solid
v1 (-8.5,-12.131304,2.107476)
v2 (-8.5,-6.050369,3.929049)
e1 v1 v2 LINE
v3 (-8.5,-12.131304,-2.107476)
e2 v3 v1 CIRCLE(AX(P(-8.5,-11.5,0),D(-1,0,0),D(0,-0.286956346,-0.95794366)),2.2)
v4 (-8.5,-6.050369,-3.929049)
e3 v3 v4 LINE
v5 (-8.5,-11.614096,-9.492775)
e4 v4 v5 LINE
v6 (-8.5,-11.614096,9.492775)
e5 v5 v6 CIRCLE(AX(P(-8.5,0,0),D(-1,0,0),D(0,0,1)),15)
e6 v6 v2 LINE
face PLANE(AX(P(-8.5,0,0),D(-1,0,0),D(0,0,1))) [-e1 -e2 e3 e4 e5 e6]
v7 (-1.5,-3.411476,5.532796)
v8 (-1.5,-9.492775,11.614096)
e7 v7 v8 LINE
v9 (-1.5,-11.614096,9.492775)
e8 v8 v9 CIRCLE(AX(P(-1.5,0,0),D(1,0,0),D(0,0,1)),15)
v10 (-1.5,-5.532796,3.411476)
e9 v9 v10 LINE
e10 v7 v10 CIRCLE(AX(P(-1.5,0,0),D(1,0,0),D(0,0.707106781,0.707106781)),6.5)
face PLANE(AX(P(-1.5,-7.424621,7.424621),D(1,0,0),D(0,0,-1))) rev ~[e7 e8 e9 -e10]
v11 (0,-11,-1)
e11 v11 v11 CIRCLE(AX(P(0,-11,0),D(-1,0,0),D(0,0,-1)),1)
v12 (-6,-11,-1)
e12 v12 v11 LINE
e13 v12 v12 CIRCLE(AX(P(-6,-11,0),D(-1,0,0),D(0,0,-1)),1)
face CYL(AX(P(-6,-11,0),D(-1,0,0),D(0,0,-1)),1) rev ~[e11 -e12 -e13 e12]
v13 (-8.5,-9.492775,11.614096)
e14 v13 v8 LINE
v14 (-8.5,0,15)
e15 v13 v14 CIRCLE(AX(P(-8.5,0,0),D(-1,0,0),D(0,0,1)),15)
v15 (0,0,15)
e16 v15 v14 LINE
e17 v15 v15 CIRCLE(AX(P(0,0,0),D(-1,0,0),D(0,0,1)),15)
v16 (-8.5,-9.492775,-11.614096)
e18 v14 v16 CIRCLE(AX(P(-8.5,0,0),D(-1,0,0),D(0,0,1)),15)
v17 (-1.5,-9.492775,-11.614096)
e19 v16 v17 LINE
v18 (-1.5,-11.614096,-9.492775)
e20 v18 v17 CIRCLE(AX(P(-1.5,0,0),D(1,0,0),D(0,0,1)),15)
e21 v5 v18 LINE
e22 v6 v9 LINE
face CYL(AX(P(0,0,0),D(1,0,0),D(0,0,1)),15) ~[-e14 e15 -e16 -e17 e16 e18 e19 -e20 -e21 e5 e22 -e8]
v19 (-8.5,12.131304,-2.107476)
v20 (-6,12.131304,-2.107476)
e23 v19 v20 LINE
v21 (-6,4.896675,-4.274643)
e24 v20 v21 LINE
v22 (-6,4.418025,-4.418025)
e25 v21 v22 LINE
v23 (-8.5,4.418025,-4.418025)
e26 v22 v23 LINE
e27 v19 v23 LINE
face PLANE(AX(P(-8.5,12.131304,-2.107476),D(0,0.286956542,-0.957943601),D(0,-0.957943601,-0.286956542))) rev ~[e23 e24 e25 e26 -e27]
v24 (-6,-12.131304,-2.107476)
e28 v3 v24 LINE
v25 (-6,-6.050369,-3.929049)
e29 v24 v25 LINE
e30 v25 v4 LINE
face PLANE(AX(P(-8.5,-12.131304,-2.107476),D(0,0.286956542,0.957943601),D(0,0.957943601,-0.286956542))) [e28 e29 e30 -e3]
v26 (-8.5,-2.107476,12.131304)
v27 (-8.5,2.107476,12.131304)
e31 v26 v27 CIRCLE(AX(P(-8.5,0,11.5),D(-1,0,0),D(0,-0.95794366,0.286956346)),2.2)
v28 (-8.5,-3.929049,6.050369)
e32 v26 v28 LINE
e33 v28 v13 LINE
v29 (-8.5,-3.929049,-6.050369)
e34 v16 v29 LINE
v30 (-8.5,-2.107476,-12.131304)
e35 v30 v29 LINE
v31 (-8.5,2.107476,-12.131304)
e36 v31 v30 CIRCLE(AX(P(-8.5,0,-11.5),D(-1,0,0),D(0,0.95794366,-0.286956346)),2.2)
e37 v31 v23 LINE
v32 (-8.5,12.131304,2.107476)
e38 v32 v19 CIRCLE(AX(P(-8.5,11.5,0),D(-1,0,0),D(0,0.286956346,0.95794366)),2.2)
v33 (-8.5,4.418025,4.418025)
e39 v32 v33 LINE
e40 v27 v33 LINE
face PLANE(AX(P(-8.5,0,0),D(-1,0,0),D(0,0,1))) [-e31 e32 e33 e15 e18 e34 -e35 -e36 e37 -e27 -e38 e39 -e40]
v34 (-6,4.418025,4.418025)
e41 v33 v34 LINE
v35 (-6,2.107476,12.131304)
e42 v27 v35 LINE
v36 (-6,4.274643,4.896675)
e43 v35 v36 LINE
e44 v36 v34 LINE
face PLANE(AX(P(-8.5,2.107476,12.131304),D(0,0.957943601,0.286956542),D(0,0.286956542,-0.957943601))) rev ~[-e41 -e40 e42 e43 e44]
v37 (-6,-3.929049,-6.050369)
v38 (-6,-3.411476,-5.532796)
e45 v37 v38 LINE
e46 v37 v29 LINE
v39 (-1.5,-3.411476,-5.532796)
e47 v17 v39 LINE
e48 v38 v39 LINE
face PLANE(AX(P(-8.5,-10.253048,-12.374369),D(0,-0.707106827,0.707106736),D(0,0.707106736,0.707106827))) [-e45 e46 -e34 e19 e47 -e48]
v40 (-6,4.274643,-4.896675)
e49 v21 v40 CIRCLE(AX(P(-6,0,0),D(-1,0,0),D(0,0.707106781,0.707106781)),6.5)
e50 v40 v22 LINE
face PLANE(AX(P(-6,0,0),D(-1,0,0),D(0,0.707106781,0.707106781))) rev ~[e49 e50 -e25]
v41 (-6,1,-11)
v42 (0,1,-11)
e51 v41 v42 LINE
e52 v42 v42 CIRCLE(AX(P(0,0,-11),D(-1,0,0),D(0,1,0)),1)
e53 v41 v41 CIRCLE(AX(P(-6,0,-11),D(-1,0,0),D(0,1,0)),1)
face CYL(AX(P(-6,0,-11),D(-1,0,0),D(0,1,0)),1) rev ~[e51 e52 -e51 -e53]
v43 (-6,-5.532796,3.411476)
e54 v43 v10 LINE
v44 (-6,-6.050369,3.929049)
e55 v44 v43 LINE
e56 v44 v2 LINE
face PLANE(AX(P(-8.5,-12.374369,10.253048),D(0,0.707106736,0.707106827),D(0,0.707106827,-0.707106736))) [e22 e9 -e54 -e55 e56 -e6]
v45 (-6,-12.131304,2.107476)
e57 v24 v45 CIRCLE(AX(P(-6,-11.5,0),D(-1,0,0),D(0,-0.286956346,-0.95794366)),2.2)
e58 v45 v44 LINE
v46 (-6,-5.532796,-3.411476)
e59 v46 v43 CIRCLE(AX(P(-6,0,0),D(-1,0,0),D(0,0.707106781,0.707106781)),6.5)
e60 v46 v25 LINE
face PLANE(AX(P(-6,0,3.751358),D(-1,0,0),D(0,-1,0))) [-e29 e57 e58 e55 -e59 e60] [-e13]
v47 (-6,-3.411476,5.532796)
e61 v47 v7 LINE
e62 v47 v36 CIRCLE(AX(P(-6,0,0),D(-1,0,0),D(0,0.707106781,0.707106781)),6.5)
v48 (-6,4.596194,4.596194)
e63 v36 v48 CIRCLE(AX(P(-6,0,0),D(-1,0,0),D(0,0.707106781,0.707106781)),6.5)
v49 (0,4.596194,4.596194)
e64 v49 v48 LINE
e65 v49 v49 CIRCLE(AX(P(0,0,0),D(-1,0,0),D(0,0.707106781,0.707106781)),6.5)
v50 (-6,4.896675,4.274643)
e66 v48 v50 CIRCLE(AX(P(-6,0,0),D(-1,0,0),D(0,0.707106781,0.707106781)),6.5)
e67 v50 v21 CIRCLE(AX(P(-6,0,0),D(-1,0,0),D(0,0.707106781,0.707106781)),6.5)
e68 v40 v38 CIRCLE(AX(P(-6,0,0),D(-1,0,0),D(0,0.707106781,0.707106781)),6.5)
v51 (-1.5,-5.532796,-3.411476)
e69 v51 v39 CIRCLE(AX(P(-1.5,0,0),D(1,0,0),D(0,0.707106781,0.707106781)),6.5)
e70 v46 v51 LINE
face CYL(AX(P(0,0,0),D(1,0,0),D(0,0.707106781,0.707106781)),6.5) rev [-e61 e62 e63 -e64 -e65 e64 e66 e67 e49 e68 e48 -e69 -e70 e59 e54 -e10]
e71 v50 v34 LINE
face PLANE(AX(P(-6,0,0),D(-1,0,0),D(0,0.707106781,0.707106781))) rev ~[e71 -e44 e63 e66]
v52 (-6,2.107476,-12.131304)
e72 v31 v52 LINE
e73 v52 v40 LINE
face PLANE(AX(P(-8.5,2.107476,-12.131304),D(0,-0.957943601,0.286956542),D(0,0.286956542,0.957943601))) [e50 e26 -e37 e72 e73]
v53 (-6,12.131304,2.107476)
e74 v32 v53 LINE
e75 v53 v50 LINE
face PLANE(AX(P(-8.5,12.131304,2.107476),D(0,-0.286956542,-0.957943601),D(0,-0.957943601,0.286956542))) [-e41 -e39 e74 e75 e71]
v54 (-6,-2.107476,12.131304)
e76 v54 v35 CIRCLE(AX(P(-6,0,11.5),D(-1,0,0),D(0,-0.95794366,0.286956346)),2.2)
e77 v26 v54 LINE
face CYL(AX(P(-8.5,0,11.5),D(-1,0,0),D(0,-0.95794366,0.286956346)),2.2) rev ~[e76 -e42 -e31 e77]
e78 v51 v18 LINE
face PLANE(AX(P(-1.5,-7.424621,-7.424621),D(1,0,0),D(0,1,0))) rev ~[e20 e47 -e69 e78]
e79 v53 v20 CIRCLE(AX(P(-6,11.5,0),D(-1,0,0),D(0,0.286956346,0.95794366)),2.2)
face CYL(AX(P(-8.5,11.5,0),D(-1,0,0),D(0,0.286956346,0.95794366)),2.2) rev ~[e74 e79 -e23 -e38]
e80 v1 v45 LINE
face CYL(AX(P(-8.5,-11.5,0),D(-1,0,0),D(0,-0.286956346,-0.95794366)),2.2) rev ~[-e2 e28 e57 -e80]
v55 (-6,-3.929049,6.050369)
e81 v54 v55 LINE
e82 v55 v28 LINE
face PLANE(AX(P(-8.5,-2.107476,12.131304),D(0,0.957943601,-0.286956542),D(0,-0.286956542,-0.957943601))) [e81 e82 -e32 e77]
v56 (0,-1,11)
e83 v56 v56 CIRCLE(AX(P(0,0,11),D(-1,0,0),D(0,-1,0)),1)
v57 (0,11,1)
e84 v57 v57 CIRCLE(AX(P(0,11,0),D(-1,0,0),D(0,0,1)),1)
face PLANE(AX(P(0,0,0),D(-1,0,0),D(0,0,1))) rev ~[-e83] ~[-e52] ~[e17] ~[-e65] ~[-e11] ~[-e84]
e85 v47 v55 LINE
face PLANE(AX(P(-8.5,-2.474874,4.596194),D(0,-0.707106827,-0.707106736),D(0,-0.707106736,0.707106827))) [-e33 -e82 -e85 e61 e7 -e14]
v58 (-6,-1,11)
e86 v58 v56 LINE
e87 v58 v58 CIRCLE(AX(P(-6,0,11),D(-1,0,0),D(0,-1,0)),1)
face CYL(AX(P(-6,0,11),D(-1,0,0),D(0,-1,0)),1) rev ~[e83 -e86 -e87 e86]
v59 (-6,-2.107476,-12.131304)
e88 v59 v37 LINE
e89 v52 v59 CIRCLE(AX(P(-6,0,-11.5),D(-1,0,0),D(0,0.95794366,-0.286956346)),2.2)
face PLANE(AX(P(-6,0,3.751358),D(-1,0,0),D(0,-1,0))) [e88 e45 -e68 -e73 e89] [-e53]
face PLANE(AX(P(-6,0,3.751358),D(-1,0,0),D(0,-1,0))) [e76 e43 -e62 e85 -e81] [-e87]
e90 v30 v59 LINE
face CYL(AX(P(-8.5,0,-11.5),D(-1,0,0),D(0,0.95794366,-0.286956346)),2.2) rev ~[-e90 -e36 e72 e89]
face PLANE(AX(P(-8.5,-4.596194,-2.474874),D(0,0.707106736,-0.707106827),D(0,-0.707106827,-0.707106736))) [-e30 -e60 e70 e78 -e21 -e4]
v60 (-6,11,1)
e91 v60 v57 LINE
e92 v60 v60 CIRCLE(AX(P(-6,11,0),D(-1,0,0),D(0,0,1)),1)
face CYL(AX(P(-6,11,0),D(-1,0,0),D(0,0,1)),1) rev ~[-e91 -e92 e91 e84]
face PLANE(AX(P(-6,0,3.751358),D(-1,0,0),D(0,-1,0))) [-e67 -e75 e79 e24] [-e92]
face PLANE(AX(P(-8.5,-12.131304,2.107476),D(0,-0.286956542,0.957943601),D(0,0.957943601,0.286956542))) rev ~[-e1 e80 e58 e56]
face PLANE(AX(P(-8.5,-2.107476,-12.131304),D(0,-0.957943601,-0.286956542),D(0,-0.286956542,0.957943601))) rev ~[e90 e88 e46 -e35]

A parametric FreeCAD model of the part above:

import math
import FreeCAD as App
import Part
import Sketcher
Q = App.Units.Quantity

doc = App.newDocument("Part")
body = doc.addObject("PartDesign::Body", "Body")

# Sketch on YZ plane
sketch1 = doc.addObject("Sketcher::SketchObject", "Sketch")
body.addObject(sketch1)
sketch1.AttachmentSupport = (doc.YZ_Plane, [""])
sketch1.MapMode = "FlatFace"
sketch1.addGeometry([
    Part.Circle(App.Vector(0, 0, 0), App.Vector(0, 0, 1), 6.5),
    Part.Circle(App.Vector(0, 0, 0), App.Vector(0, 0, 1), 2.5),
], False)
sketch1.addConstraint([
    Sketcher.Constraint("Coincident", 0, 3, -1, 1),
    Sketcher.Constraint("Coincident", 1, 3, -1, 1),
    Sketcher.Constraint("Diameter", 0, 13.0),
    Sketcher.Constraint("Diameter", 1, 5.0),
])
pad1 = doc.addObject("PartDesign::Pad", "Pad")
body.addObject(pad1)
pad1.Profile = sketch1
pad1.Length = 6

# Sketch on YZ plane
sketch2 = doc.addObject("Sketcher::SketchObject", "Sketch001")
body.addObject(sketch2)
sketch2.AttachmentSupport = (doc.YZ_Plane, [""])
sketch2.MapMode = "FlatFace"
sketch2.addGeometry([
    Part.Circle(App.Vector(0, 0, 0), App.Vector(0, 0, 1), 5),
    Part.Circle(App.Vector(0, 0, 0), App.Vector(0, 0, 1), 2.522437),
], False)
sketch2.addConstraint([
    Sketcher.Constraint("Coincident", 0, 3, -1, 1),
    Sketcher.Constraint("Coincident", 1, 3, -1, 1),
    Sketcher.Constraint("Diameter", 0, 10.0),
    Sketcher.Constraint("Diameter", 1, 5.044874),
])
pad2 = doc.addObject("PartDesign::Pad", "Pad001")
body.addObject(pad2)
pad2.Profile = sketch2
pad2.Length = 7
pad2.Reversed = True

# Sketch on YZ plane
sketch3 = doc.addObject("Sketcher::SketchObject", "Sketch002")
body.addObject(sketch3)
sketch3.AttachmentSupport = (doc.YZ_Plane, [""])
sketch3.MapMode = "FlatFace"
sketch3.AttachmentOffset = App.Placement(App.Vector(0, 0, -7), App.Rotation())
sketch3.addGeometry([
    Part.Circle(App.Vector(0, 0, 0), App.Vector(0, 0, 1), 6.5),
    Part.Circle(App.Vector(0, 0, 0), App.Vector(0, 0, 1), 2.522437),
], False)
sketch3.addConstraint([
    Sketcher.Constraint("Coincident", 0, 3, -1, 1),
    Sketcher.Constraint("Coincident", 1, 3, -1, 1),
    Sketcher.Constraint("Diameter", 0, 13.0),
    Sketcher.Constraint("Diameter", 1, 5.044874),
])
pad3 = doc.addObject("PartDesign::Pad", "Pad002")
body.addObject(pad3)
pad3.Profile = sketch3
pad3.Length = 1
pad3.Reversed = True

# Sketch on XZ plane
sketch4 = doc.addObject("Sketcher::SketchObject", "Sketch003")
body.addObject(sketch4)
sketch4.AttachmentSupport = (doc.XZ_Plane, [""])
sketch4.MapMode = "FlatFace"
sketch4.addGeometry(Part.Circle(App.Vector(3, 0, 0), App.Vector(0, 0, 1), 1), False)
sketch4.addConstraint([
    Sketcher.Constraint("PointOnObject", 0, 3, -1),
    Sketcher.Constraint("Diameter", 0, 2.0),
    Sketcher.Constraint("DistanceX", -1, 1, 0, 3, 3.0),
])
pad4 = doc.addObject("PartDesign::Pad", "Pad003")
body.addObject(pad4)
pad4.Profile = sketch4
pad4.Length = 7
body2 = doc.addObject("PartDesign::Body", "Body001")
doc.recompute()

body.Placement = App.Placement(App.Vector(0, 0, 0), App.Rotation(App.Vector(1, 0, 0), 135))
boolean = doc.addObject("PartDesign::Boolean", "Boolean")
body2.addObject(boolean)
boolean.Type = "Fuse"
boolean.addObjects([body])
body3 = doc.addObject("PartDesign::Body", "Body002")
doc.recompute()

body2.Placement = App.Placement(App.Vector(0, 0, 0), App.Rotation(App.Vector(0, 0, 1), 180))
boolean2 = doc.addObject("PartDesign::Boolean", "Boolean001")
body3.addObject(boolean2)
boolean2.Type = "Fuse"
boolean2.addObjects([body2])
body4 = doc.addObject("PartDesign::Body", "Body003")

# Sketch on XY plane
sketch5 = doc.addObject("Sketcher::SketchObject", "Sketch004")
body4.addObject(sketch5)
sketch5.AttachmentSupport = (doc.getObject("XY_Plane003"), [""])
sketch5.MapMode = "FlatFace"
sketch5.addGeometry(Part.Circle(App.Vector(0, 0, 0), App.Vector(0, 0, 1), 15), False)
sketch5.addConstraint([
    Sketcher.Constraint("Coincident", 0, 3, -1, 1),
    Sketcher.Constraint("Diameter", 0, 30.0),
])
pad5 = doc.addObject("PartDesign::Pad", "Pad004")
body4.addObject(pad5)
pad5.Profile = sketch5
pad5.Length = 8.5

# Sketch on XY plane
sketch6 = doc.addObject("Sketcher::SketchObject", "Sketch005")
body4.addObject(sketch6)
sketch6.AttachmentSupport = (doc.getObject("XY_Plane003"), [""])
sketch6.MapMode = "FlatFace"
sketch6.AttachmentOffset = App.Placement(App.Vector(0, 0, 8.5), App.Rotation())
sketch6.addGeometry([
    Part.ArcOfCircle(Part.Circle(App.Vector(0, 0, 0), App.Vector(0, 0, 1), 5.5), math.radians(163.324166), math.radians(376.675834)),
    Part.LineSegment(App.Vector(5.26869, 1.578261, 0), App.Vector(2.107476, 12.131304, 0)),
    Part.ArcOfCircle(Part.Circle(App.Vector(0, 11.5, 0), App.Vector(0, 0, 1), 2.2), math.radians(16.675824), math.radians(163.324176)),
    Part.LineSegment(App.Vector(-2.107476, 12.131304, 0), App.Vector(-5.26869, 1.578261, 0)),
], False)
sketch6.addConstraint([
    Sketcher.Constraint("Tangent", 0, 2, 1, 1),
    Sketcher.Constraint("Tangent", 1, 2, 2, 1),
    Sketcher.Constraint("Tangent", 2, 2, 3, 1),
    Sketcher.Constraint("Tangent", 3, 2, 0, 1),
    Sketcher.Constraint("Coincident", 0, 3, -1, 1),
    Sketcher.Constraint("PointOnObject", 2, 3, -2),
    Sketcher.Constraint("Radius", 0, 5.5),
    Sketcher.Constraint("Radius", 2, 2.2),
    Sketcher.Constraint("DistanceY", -1, 1, 2, 3, 11.5),
])
pocket1 = doc.addObject("PartDesign::Pocket", "Pocket")
body4.addObject(pocket1)
pocket1.Profile = sketch6
pocket1.Length = 2.5
doc.recompute()

polarpattern = doc.addObject("PartDesign::PolarPattern", "PolarPattern")
body4.addObject(polarpattern)
polarpattern.Originals = [pocket1]
polarpattern.Axis = (doc.getObject("Z_Axis003"), [""])
polarpattern.Angle = 360
polarpattern.Occurrences = 4
body4.Tip = polarpattern

# Sketch on XY plane
sketch7 = doc.addObject("Sketcher::SketchObject", "Sketch006")
body4.addObject(sketch7)
sketch7.AttachmentSupport = (doc.getObject("XY_Plane003"), [""])
sketch7.MapMode = "FlatFace"
sketch7.AttachmentOffset = App.Placement(App.Vector(0, 0, 6), App.Rotation())
sketch7.addGeometry(Part.Circle(App.Vector(0, 11, 0), App.Vector(0, 0, 1), 1), False)
sketch7.addConstraint([
    Sketcher.Constraint("PointOnObject", 0, 3, -2),
    Sketcher.Constraint("Diameter", 0, 2.0),
    Sketcher.Constraint("DistanceY", -1, 1, 0, 3, 11.0),
])
pocket2 = doc.addObject("PartDesign::Pocket", "Pocket001")
body4.addObject(pocket2)
pocket2.Profile = sketch7
pocket2.Length = 25
doc.recompute()

polarpattern2 = doc.addObject("PartDesign::PolarPattern", "PolarPattern001")
body4.addObject(polarpattern2)
polarpattern2.Originals = [pocket2]
polarpattern2.Axis = (doc.getObject("Z_Axis003"), [""])
polarpattern2.Angle = 360
polarpattern2.Occurrences = 4
body4.Tip = polarpattern2

# Sketch on XY plane
sketch8 = doc.addObject("Sketcher::SketchObject", "Sketch007")
body4.addObject(sketch8)
sketch8.AttachmentSupport = (doc.getObject("XY_Plane003"), [""])
sketch8.MapMode = "FlatFace"
sketch8.AttachmentOffset = App.Placement(App.Vector(0, 0, 6), App.Rotation())
sketch8.addGeometry(Part.Circle(App.Vector(0, 0, 0), App.Vector(0, 0, 1), 4), False)
sketch8.addConstraint([
    Sketcher.Constraint("Coincident", 0, 3, -1, 1),
    Sketcher.Constraint("Diameter", 0, 8.0),
])
pocket3 = doc.addObject("PartDesign::Pocket", "Pocket002")
body4.addObject(pocket3)
pocket3.Profile = sketch8
pocket3.Type = "ThroughAll"
body5 = doc.addObject("PartDesign::Body", "Body004")
doc.recompute()

body4.Placement = App.Placement(App.Vector(0, 0, 0), App.Rotation(App.Vector(0, -1, 0), 90))
boolean3 = doc.addObject("PartDesign::Boolean", "Boolean002")
body5.addObject(boolean3)
boolean3.Type = "Fuse"
boolean3.addObjects([body4])
doc.recompute()

boolean4 = doc.addObject("PartDesign::Boolean", "Boolean003")
body5.addObject(boolean4)
boolean4.Type = "Cut"
boolean4.addObjects([body3])

# Sketch on YZ plane
sketch9 = doc.addObject("Sketcher::SketchObject", "Sketch008")
body5.addObject(sketch9)
sketch9.AttachmentSupport = (doc.getObject("YZ_Plane004"), [""])
sketch9.MapMode = "FlatFace"
sketch9.AttachmentOffset = App.Placement(App.Vector(0, 0, -8.5), App.Rotation())
sketch9.addGeometry([
    Part.LineSegment(App.Vector(-4.596194, -2.474874, 0), App.Vector(-2.474874, -4.596194, 0)),
    Part.LineSegment(App.Vector(-2.474874, -4.596194, 0), App.Vector(-10.253048, -12.374369, 0)),
    Part.LineSegment(App.Vector(-10.253048, -12.374369, 0), App.Vector(-12.374369, -10.253048, 0)),
    Part.LineSegment(App.Vector(-12.374369, -10.253048, 0), App.Vector(-4.596194, -2.474874, 0)),
], False)
sketch9.addConstraint([
    Sketcher.Constraint("Coincident", 0, 2, 1, 1),
    Sketcher.Constraint("Coincident", 1, 2, 2, 1),
    Sketcher.Constraint("Coincident", 2, 2, 3, 1),
    Sketcher.Constraint("Coincident", 3, 2, 0, 1),
    Sketcher.Constraint("Perpendicular", 0, 1),
    Sketcher.Constraint("Perpendicular", 1, 2),
    Sketcher.Constraint("Perpendicular", 2, 3),
    Sketcher.Constraint("Angle", 0, Q("-45 deg")),
    Sketcher.Constraint("Distance", 0, 3.0),
    Sketcher.Constraint("Distance", 1, 11.0),
    Sketcher.Constraint("DistanceY", 1, 2, -1, 1, 12.374369),
    Sketcher.Constraint("DistanceX", 2, 2, -1, 1, 12.374369),
])
pocket4 = doc.addObject("PartDesign::Pocket", "Pocket003")
body5.addObject(pocket4)
pocket4.Profile = sketch9
pocket4.Length = 7
pocket4.Reversed = True
doc.recompute()

polarpattern3 = doc.addObject("PartDesign::PolarPattern", "PolarPattern002")
body5.addObject(polarpattern3)
polarpattern3.Originals = [pocket4]
polarpattern3.Axis = (doc.getObject("X_Axis004"), [""])
polarpattern3.Angle = 90
polarpattern3.Occurrences = 2
polarpattern3.Reversed = True
body5.Tip = polarpattern3

doc.recompute()
